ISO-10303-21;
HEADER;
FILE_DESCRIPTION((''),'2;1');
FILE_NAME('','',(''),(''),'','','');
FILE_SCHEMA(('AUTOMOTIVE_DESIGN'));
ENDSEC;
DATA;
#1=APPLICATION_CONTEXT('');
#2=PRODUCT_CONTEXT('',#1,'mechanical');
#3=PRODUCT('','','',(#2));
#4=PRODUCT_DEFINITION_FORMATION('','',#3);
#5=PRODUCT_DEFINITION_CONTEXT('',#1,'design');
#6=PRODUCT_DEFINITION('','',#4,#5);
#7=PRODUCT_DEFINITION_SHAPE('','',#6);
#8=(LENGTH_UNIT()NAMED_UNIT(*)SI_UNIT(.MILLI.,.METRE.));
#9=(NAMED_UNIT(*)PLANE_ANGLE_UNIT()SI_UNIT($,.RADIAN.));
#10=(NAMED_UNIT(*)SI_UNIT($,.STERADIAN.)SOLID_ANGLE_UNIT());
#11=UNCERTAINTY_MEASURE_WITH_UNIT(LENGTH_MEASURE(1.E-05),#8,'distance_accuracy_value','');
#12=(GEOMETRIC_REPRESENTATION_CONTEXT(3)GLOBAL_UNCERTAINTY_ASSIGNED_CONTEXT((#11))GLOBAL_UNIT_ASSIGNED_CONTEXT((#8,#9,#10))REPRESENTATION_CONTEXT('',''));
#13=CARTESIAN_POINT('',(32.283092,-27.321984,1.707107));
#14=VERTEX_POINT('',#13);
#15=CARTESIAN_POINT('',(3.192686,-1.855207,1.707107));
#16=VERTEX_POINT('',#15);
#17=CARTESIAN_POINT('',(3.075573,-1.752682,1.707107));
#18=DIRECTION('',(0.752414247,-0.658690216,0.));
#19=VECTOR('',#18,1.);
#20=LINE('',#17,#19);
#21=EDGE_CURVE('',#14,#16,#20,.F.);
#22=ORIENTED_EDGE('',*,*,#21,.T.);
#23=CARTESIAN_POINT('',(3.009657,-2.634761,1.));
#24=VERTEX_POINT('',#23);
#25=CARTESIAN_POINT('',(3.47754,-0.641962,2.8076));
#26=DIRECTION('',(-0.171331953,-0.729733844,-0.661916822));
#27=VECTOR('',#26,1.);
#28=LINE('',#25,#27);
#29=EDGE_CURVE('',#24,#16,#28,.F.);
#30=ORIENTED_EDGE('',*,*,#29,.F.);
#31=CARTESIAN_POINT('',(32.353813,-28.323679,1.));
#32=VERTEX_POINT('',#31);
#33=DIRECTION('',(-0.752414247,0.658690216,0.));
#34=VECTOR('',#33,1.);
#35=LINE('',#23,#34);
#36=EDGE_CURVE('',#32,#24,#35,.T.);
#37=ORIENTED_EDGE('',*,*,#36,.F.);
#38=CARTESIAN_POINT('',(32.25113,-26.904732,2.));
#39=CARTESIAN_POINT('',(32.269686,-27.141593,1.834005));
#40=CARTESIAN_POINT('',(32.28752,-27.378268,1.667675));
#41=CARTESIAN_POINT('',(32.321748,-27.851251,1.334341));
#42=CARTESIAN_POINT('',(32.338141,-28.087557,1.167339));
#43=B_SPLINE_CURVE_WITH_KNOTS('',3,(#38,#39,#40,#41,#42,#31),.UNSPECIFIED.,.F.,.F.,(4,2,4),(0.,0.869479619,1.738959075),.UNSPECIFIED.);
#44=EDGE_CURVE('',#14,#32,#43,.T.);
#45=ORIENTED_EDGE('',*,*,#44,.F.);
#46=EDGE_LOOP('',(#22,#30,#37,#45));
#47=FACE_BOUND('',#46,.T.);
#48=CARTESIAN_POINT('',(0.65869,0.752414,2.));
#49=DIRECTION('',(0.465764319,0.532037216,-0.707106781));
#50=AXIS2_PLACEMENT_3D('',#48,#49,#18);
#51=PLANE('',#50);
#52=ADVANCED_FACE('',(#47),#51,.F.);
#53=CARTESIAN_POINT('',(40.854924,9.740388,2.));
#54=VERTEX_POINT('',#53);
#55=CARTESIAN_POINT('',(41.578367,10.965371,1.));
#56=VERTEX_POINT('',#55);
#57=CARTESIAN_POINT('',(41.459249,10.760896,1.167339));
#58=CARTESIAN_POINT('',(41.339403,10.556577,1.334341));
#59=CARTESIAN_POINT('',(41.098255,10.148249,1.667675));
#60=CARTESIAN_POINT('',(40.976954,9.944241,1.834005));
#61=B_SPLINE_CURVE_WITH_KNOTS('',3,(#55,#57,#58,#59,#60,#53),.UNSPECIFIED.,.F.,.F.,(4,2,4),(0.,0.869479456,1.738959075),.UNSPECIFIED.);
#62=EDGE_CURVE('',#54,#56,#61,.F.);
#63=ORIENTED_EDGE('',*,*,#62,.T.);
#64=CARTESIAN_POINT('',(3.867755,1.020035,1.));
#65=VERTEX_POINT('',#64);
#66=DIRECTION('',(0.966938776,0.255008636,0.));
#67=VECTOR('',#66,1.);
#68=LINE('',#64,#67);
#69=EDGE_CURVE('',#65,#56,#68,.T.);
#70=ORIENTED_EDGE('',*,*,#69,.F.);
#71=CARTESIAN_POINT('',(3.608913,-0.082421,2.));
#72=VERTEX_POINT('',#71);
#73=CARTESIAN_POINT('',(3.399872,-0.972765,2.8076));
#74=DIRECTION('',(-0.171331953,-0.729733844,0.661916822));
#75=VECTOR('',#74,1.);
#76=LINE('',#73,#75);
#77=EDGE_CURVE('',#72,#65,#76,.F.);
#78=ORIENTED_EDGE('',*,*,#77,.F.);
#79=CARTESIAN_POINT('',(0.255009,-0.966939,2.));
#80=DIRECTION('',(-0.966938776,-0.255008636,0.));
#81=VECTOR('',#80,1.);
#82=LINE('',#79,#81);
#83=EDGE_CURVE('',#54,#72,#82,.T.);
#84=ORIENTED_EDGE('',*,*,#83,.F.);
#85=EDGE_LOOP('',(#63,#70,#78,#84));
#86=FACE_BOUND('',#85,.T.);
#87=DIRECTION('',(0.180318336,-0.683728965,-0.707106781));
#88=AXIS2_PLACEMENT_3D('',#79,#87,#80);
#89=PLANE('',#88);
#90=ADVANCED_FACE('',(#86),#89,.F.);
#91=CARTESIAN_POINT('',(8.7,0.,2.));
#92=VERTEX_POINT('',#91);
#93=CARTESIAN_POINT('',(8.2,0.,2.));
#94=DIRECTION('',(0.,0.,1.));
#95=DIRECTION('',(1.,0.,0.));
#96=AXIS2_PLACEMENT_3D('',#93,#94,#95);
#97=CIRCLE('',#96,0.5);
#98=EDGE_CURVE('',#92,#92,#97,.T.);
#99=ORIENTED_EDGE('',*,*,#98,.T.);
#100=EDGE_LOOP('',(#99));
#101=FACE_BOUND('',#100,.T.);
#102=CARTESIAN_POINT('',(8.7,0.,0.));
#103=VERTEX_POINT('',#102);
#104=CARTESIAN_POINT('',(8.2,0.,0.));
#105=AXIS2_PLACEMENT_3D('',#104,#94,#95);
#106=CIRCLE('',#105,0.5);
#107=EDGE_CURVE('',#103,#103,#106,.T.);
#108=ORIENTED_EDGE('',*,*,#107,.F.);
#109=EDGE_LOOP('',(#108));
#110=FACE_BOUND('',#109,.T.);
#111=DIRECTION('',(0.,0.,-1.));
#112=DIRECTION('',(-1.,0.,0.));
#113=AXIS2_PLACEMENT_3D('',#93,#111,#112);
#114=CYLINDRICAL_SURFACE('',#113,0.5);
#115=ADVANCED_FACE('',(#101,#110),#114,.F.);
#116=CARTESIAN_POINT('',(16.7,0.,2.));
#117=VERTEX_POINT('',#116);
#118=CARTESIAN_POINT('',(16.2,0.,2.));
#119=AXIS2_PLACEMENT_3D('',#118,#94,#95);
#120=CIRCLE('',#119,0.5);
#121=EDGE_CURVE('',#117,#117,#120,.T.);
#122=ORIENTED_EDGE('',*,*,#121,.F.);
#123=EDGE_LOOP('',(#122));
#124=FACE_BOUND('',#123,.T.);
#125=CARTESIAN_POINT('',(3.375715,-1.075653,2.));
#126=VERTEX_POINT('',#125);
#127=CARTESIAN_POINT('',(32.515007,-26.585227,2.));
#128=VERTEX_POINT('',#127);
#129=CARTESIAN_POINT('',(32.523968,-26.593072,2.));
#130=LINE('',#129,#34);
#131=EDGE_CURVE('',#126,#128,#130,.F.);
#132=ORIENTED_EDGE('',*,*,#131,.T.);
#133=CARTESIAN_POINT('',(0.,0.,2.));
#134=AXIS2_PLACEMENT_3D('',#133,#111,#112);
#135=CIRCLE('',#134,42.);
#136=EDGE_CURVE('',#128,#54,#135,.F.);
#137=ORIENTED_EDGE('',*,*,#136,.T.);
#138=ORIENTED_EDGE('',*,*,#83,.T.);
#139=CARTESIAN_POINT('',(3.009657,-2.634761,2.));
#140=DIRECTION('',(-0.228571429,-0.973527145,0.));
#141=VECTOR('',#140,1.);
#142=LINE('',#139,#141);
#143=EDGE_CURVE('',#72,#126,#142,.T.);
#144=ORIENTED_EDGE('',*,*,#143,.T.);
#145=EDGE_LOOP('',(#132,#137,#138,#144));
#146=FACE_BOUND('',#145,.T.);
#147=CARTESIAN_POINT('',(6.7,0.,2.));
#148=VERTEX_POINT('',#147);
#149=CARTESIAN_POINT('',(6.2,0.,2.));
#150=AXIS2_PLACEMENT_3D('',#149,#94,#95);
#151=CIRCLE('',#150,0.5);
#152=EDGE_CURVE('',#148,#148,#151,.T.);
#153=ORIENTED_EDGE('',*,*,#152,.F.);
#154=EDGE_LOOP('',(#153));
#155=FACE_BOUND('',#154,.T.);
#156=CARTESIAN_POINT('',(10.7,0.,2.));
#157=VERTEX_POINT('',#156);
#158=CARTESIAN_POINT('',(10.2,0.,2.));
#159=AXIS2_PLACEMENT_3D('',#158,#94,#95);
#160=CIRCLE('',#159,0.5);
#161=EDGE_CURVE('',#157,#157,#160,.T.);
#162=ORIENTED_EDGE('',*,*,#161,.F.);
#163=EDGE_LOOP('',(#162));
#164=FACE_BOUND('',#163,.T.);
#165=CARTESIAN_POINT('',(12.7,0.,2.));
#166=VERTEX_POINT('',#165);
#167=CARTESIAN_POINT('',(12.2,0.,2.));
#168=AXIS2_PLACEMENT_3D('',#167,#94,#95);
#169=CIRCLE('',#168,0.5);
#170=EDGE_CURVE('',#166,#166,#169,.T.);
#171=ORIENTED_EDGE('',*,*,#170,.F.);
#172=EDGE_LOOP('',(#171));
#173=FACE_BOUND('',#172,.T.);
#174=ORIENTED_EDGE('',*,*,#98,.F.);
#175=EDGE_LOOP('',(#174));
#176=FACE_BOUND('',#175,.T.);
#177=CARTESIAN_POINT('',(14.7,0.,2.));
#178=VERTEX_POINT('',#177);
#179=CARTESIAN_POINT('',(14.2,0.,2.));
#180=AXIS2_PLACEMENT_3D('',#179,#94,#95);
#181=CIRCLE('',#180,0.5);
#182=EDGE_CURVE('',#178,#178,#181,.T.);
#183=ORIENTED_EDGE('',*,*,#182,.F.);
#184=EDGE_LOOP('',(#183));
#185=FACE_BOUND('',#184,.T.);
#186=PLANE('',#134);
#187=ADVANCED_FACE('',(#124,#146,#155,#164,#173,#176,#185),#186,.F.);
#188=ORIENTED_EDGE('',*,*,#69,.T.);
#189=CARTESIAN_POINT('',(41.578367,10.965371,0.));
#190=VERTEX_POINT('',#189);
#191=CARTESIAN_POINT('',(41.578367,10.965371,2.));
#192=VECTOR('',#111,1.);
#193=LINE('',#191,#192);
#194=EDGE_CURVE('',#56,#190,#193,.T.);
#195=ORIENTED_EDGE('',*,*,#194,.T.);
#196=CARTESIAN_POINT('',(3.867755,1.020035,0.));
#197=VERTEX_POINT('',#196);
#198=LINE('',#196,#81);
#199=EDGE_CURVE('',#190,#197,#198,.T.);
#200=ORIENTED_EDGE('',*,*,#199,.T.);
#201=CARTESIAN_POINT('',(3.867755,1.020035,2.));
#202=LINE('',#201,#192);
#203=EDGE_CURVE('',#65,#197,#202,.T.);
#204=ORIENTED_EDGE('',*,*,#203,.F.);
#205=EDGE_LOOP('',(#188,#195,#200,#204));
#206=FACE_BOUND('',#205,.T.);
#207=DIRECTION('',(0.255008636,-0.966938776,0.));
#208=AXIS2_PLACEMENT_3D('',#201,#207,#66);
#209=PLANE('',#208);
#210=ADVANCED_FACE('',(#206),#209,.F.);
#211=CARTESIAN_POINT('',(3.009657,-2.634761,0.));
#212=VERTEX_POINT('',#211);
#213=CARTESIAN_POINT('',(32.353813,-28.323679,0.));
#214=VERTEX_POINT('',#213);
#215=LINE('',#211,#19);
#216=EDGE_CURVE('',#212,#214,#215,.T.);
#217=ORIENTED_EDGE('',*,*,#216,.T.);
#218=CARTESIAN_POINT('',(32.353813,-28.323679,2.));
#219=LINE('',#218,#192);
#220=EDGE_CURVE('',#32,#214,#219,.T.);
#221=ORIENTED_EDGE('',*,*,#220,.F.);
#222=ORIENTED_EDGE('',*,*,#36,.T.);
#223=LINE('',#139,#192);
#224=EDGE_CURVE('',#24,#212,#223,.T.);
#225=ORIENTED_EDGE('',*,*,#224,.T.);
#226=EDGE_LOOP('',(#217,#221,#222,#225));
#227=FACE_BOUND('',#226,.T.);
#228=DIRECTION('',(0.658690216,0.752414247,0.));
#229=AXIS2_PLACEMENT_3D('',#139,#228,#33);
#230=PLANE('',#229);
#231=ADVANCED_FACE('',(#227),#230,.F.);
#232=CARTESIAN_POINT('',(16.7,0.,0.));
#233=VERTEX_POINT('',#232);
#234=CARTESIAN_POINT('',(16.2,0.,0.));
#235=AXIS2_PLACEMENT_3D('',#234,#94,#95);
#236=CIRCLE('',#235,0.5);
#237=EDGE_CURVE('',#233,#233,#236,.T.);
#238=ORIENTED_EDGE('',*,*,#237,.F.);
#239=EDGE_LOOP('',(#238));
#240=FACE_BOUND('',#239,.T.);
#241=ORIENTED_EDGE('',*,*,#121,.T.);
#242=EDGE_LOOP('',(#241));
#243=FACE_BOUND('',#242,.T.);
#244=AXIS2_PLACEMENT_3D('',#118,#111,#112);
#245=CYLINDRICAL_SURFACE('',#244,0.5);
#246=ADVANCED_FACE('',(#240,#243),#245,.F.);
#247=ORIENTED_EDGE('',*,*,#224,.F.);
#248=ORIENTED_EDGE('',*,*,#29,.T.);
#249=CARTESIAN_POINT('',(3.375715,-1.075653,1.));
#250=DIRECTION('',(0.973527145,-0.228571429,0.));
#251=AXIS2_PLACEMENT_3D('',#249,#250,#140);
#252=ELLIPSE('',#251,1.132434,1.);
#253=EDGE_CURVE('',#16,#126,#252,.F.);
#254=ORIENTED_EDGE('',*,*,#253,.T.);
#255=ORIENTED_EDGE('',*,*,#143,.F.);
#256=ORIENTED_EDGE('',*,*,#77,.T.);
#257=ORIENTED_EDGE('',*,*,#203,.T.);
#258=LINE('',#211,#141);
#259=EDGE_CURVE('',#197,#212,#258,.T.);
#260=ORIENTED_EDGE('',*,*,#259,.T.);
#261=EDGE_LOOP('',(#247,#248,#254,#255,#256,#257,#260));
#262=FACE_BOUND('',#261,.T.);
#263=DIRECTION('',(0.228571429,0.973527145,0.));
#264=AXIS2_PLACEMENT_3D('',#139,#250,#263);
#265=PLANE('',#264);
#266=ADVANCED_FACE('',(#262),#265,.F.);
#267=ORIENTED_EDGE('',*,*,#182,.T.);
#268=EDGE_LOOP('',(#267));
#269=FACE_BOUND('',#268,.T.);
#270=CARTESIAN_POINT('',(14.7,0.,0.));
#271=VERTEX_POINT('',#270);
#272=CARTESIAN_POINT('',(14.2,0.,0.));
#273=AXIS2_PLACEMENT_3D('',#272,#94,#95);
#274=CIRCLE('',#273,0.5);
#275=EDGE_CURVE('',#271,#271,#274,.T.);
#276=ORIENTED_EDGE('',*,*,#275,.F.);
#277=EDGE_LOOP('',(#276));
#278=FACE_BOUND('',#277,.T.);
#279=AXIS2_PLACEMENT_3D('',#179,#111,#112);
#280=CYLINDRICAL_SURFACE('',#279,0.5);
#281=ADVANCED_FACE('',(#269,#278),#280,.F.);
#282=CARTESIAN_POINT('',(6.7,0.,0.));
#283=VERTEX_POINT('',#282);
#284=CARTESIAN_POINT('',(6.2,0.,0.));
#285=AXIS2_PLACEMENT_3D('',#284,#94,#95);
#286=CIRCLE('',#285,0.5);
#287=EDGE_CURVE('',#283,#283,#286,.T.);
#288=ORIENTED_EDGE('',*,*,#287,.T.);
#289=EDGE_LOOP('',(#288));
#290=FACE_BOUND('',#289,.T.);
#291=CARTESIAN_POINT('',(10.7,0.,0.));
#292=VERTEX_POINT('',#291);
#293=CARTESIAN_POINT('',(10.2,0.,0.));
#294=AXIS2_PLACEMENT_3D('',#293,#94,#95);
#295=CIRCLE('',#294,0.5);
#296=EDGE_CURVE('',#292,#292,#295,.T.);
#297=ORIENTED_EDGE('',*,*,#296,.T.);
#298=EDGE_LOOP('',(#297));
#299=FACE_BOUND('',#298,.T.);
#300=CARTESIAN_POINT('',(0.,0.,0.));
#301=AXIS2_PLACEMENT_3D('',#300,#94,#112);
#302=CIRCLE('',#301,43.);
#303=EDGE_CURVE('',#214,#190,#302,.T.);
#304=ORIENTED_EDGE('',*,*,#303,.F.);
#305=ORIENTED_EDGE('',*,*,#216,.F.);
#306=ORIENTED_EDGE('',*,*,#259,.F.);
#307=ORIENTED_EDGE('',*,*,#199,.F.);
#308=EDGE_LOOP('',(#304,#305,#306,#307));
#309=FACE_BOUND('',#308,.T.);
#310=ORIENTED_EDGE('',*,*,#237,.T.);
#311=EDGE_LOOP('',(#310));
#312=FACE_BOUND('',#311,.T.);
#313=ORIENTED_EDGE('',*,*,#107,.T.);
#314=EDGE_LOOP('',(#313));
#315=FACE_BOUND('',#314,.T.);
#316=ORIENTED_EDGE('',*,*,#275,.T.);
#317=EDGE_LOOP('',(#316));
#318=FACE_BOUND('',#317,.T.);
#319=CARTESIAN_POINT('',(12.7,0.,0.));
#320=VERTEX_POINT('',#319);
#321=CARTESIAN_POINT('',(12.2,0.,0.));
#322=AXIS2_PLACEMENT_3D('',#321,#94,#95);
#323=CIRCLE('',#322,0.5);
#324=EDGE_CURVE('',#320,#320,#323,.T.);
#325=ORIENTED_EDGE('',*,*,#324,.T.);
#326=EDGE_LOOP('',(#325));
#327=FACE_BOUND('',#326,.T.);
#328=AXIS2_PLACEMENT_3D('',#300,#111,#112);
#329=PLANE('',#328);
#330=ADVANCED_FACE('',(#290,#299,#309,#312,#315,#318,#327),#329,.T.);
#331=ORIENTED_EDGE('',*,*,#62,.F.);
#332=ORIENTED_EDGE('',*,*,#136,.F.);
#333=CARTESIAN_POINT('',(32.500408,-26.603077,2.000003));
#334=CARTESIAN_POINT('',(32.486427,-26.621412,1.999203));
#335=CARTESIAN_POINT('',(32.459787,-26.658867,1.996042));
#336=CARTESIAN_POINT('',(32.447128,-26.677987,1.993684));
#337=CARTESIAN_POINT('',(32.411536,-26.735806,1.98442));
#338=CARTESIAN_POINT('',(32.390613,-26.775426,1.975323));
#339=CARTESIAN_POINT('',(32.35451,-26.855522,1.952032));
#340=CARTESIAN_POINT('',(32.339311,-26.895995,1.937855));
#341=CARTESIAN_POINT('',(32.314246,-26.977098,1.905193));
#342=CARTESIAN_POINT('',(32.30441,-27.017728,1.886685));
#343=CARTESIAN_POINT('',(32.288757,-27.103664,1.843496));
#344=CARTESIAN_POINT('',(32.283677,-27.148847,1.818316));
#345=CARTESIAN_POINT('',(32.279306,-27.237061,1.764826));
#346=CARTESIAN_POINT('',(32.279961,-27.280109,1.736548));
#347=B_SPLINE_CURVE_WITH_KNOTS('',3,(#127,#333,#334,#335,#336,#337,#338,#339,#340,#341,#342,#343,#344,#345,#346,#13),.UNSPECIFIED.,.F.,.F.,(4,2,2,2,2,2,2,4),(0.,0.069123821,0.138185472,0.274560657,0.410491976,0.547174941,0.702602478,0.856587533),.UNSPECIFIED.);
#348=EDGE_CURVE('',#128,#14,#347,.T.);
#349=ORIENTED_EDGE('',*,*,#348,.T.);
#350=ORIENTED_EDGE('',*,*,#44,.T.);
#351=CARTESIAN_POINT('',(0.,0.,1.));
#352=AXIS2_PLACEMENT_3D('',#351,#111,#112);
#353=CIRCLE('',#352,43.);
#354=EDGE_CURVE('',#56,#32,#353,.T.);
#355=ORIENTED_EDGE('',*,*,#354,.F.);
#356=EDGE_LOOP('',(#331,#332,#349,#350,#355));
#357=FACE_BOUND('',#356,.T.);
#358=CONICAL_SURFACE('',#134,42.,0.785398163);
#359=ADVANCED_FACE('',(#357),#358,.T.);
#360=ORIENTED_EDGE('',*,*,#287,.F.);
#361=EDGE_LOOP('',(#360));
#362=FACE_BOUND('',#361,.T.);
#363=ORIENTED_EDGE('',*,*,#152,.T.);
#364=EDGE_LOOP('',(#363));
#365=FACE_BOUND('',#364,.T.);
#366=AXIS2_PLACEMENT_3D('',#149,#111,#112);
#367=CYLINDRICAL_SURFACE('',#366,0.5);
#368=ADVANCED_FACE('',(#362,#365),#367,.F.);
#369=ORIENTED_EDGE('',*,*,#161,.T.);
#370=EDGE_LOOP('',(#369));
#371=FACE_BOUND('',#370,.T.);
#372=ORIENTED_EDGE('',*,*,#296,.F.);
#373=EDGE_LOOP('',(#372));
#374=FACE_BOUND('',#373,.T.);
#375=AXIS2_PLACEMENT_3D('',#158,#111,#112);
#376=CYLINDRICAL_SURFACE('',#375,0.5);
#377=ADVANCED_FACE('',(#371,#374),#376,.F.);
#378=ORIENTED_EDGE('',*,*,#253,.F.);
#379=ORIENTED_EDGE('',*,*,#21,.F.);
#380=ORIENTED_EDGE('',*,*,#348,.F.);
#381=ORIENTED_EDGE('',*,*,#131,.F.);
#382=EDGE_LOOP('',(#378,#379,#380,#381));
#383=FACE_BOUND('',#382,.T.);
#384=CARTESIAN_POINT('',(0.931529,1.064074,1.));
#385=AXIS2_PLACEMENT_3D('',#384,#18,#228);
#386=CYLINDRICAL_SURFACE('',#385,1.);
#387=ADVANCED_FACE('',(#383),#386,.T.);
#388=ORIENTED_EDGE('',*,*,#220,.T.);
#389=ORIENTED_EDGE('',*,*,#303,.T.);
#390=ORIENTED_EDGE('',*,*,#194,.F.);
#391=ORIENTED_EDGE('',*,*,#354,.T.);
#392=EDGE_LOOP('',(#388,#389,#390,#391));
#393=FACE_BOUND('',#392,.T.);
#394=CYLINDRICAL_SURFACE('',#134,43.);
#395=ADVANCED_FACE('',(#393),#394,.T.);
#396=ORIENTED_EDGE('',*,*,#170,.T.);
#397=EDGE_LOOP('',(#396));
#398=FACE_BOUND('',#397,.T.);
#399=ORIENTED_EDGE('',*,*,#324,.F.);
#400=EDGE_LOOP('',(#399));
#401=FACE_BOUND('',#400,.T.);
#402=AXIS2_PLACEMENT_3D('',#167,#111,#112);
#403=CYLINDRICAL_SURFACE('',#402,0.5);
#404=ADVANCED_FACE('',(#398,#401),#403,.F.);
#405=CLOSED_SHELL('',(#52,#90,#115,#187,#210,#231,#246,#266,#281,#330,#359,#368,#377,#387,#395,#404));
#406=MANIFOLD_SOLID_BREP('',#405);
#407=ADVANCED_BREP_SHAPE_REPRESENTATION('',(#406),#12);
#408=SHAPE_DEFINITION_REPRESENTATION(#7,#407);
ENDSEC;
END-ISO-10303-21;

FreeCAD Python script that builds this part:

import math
import FreeCAD as App
import Part
import Sketcher
Q = App.Units.Quantity


def edges_at(feature, points):
    """Names of the edges that pass closest to the given points."""
    edges = feature.Shape.Edges
    near = lambda p: min(range(len(edges)), key=lambda i: edges[i].distToShape(Part.Vertex(*p))[0])
    return sorted({f"Edge{near(p) + 1}" for p in points})

doc = App.newDocument("Part")
body = doc.addObject("PartDesign::Body", "Body")

sketch1 = body.newObject("Sketcher::SketchObject", "Sketch")
sketch1.AttachmentSupport = (doc.getObject("XY_Plane"), [""])
sketch1.MapMode = "FlatFace"
sketch1.addGeometry(Part.LineSegment(App.Vector(41.6, 11, 0), App.Vector(3.9, 1, 0)), False)
sketch1.addGeometry(Part.LineSegment(App.Vector(3.9, 1, 0), App.Vector(3, -2.6, 0)), False)
sketch1.addGeometry(Part.LineSegment(App.Vector(3, -2.6, 0), App.Vector(32.4, -28.3, 0)), False)
sketch1.addGeometry(Part.ArcOfCircle(Part.Circle(App.Vector(0, 0, 0), App.Vector(0, 0, 1), 43), math.radians(-41), math.radians(15)), False)
sketch1.addGeometry(Part.Circle(App.Vector(16.2, 0, 0), App.Vector(0, 0, 1), 0.5), False)
sketch1.addGeometry(Part.Circle(App.Vector(14.2, 0, 0), App.Vector(0, 0, 1), 0.5), False)
sketch1.addGeometry(Part.Circle(App.Vector(12.2, 0, 0), App.Vector(0, 0, 1), 0.5), False)
sketch1.addGeometry(Part.Circle(App.Vector(10.2, 0, 0), App.Vector(0, 0, 1), 0.5), False)
sketch1.addGeometry(Part.Circle(App.Vector(8.2, 0, 0), App.Vector(0, 0, 1), 0.5), False)
sketch1.addGeometry(Part.Circle(App.Vector(6.2, 0, 0), App.Vector(0, 0, 1), 0.5), False)
sketch1.addConstraint(Sketcher.Constraint("Coincident", 0, 2, 1, 1))
sketch1.addConstraint(Sketcher.Constraint("Coincident", 1, 2, 2, 1))
sketch1.addConstraint(Sketcher.Constraint("Coincident", 2, 2, 3, 1))
sketch1.addConstraint(Sketcher.Constraint("Coincident", 3, 2, 0, 1))
sketch1.addConstraint(Sketcher.Constraint("Coincident", 3, 3, -1, 1))
sketch1.addConstraint(Sketcher.Constraint("Equal", 4, 5))
sketch1.addConstraint(Sketcher.Constraint("Equal", 5, 6))
sketch1.addConstraint(Sketcher.Constraint("Equal", 6, 7))
sketch1.addConstraint(Sketcher.Constraint("Equal", 7, 8))
sketch1.addConstraint(Sketcher.Constraint("Equal", 8, 9))
sketch1.addConstraint(Sketcher.Constraint("PointOnObject", 4, 3, -1))
sketch1.addConstraint(Sketcher.Constraint("PointOnObject", 5, 3, -1))
sketch1.addConstraint(Sketcher.Constraint("PointOnObject", 6, 3, -1))
sketch1.addConstraint(Sketcher.Constraint("PointOnObject", 7, 3, -1))
sketch1.addConstraint(Sketcher.Constraint("PointOnObject", 8, 3, -1))
sketch1.addConstraint(Sketcher.Constraint("PointOnObject", 9, 3, -1))
sketch1.addConstraint(Sketcher.Constraint("Equal", 0, 2))
sketch1.addConstraint(Sketcher.Constraint("Diameter", 4, Q("1 mm")))
sketch1.addConstraint(Sketcher.Constraint("Radius", 3, Q("43 mm")))
sketch1.addConstraint(Sketcher.Constraint("Distance", 0, Q("39 mm")))
sketch1.addConstraint(Sketcher.Constraint("DistanceX", 5, 3, 4, 3, Q("2 mm")))
sketch1.addConstraint(Sketcher.Constraint("DistanceX", 6, 3, 5, 3, Q("2 mm")))
sketch1.addConstraint(Sketcher.Constraint("DistanceX", 7, 3, 6, 3, Q("2 mm")))
sketch1.addConstraint(Sketcher.Constraint("DistanceX", 8, 3, 7, 3, Q("2 mm")))
sketch1.addConstraint(Sketcher.Constraint("DistanceX", 9, 3, 8, 3, Q("2 mm")))
sketch1.addConstraint(Sketcher.Constraint("DistanceX", -1, 1, 4, 3, Q("16.2 mm")))
sketch1.addConstraint(Sketcher.Constraint("DistanceX", 1, 2, 0, 2, Q("0.858098 mm")))
sketch1.addConstraint(Sketcher.Constraint("Distance", 1, Q("3.754179 mm")))
sketch1.addConstraint(Sketcher.Constraint("DistanceY", 2, 2, -1, 1, Q("28.323679 mm")))
sketch1.addConstraint(Sketcher.Constraint("DistanceY", -1, 1, 3, 2, Q("10.965371 mm")))
pad1 = body.newObject("PartDesign::Pad", "Pad")
pad1.Profile = sketch1
pad1.Length = 2
doc.recompute()

chamfer = body.newObject("PartDesign::Chamfer", "Chamfer")
chamfer.Base = (pad1, edges_at(pad1, [(41.862, -9.829, 2), (22.723, 5.993, 2), (17.682, -15.479, 2)]))
chamfer.Size = 1
doc.recompute()

fillet = body.newObject("PartDesign::Fillet", "Fillet")
fillet.Base = (chamfer, edges_at(chamfer, [(17.76, -14.219, 2)]))
fillet.Radius = 1

doc.recompute()
